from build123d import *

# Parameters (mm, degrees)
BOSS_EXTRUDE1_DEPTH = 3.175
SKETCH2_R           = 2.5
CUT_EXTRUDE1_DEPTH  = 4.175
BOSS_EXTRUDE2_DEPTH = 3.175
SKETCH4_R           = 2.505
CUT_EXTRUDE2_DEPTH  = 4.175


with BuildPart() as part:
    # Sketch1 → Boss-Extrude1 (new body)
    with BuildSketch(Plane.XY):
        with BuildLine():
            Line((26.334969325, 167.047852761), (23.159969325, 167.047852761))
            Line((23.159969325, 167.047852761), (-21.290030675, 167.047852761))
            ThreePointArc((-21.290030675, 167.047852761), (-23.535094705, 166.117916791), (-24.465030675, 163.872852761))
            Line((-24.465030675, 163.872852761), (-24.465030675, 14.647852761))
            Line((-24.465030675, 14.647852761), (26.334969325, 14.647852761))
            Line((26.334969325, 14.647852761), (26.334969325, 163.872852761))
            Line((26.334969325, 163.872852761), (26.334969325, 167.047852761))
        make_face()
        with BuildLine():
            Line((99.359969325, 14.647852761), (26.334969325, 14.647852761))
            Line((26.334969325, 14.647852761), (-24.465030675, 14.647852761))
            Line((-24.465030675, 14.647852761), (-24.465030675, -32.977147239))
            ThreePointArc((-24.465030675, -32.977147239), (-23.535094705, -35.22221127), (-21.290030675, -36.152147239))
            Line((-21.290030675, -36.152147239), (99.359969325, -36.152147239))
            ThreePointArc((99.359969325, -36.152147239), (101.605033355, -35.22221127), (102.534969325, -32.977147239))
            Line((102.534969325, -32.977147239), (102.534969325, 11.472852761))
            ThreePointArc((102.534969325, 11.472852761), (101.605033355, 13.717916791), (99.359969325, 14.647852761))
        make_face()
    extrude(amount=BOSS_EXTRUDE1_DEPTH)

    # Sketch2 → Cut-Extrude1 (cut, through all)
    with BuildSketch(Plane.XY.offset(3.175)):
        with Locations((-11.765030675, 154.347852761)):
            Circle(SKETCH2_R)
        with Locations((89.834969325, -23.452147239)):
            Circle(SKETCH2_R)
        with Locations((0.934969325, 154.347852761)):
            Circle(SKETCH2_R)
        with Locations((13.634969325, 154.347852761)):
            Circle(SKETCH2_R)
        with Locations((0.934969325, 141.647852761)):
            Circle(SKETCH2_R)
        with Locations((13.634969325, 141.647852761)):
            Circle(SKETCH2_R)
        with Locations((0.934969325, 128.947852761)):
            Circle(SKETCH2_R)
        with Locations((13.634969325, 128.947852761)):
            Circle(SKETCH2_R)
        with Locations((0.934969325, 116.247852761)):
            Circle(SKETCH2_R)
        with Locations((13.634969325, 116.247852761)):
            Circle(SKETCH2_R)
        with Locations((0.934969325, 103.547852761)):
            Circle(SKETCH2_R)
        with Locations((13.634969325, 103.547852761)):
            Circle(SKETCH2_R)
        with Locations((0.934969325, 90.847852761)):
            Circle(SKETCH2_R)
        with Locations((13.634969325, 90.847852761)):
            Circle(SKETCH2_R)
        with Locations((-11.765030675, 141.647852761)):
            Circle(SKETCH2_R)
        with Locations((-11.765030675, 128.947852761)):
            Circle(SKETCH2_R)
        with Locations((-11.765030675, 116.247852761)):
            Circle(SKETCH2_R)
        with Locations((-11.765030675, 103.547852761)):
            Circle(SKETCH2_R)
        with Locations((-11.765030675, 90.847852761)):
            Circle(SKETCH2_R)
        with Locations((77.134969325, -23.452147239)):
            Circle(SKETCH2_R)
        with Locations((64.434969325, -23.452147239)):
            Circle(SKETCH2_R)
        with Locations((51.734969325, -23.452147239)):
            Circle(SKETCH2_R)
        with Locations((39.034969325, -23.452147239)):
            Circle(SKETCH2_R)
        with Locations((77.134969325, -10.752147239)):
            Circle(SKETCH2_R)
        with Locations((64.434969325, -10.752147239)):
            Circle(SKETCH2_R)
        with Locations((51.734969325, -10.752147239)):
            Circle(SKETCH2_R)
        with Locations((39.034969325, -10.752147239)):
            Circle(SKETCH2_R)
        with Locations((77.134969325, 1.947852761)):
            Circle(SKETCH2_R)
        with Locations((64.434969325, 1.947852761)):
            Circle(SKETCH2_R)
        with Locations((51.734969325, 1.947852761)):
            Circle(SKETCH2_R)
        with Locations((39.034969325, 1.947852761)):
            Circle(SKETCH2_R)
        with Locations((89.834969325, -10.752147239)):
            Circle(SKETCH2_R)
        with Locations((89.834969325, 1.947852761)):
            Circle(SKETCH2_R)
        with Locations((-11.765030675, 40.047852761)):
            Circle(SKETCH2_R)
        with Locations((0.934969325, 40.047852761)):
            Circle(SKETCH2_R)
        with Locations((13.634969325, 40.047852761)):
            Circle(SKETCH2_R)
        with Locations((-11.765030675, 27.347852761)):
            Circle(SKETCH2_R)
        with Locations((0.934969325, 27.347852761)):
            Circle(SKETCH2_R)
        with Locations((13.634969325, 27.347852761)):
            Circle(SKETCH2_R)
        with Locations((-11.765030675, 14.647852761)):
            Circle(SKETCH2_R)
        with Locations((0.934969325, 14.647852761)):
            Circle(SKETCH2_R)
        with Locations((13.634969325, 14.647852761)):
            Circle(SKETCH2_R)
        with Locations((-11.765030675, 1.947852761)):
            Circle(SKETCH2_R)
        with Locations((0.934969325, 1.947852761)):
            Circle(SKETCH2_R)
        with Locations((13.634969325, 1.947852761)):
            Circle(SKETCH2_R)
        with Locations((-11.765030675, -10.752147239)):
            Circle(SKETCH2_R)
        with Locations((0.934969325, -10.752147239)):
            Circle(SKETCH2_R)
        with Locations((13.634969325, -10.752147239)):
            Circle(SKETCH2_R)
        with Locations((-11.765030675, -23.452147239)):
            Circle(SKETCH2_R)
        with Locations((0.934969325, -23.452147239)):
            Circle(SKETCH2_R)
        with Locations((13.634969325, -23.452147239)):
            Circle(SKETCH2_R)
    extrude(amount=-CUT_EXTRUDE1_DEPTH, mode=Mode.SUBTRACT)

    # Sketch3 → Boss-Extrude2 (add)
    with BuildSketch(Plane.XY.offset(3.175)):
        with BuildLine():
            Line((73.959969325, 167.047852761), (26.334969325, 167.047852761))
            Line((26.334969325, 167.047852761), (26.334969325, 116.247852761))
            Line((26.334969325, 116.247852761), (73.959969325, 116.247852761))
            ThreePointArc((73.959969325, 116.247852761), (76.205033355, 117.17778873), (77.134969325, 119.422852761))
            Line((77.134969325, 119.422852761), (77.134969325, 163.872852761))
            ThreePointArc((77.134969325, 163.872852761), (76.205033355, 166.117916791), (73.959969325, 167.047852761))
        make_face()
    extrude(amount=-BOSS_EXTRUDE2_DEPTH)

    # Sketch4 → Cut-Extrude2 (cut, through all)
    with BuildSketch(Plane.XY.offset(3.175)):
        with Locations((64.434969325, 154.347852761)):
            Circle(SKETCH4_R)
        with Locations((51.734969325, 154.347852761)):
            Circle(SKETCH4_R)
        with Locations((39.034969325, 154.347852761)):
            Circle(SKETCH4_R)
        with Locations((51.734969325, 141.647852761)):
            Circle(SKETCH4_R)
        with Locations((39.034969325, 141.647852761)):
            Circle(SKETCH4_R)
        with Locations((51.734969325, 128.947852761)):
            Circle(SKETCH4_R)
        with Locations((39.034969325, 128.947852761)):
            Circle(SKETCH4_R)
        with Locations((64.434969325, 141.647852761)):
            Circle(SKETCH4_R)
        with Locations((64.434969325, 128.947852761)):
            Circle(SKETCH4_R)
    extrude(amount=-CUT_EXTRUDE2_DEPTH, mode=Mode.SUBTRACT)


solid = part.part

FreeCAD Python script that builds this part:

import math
import FreeCAD as App
import Part
import Sketcher
Q = App.Units.Quantity

doc = App.newDocument("Part")
body = doc.addObject("PartDesign::Body", "Body")

# Sketch on XY plane
sketch1 = body.newObject("Sketcher::SketchObject", "Sketch")
sketch1.AttachmentSupport = (doc.getObject("XY_Plane"), [""])
sketch1.MapMode = "FlatFace"
sketch1.addGeometry([
    Part.LineSegment(App.Vector(26.3, 167, 0), App.Vector(-21.3, 167, 0)),  # 0
    Part.ArcOfCircle(Part.Circle(App.Vector(-21.3, 163.9, 0), App.Vector(0, 0, 1), 3.2), math.radians(90), math.radians(180)),  # 1
    Part.LineSegment(App.Vector(-24.5, 163.9, 0), App.Vector(-24.5, -33, 0)),  # 2
    Part.ArcOfCircle(Part.Circle(App.Vector(-21.3, -33, 0), App.Vector(0, 0, 1), 3.2), math.radians(180), math.radians(270)),  # 3
    Part.LineSegment(App.Vector(-21.3, -36.2, 0), App.Vector(99.4, -36.2, 0)),  # 4
    Part.ArcOfCircle(Part.Circle(App.Vector(99.4, -33, 0), App.Vector(0, 0, 1), 3.2), math.radians(-90), math.radians(0)),  # 5
    Part.LineSegment(App.Vector(102.5, -33, 0), App.Vector(102.5, 11.5, 0)),  # 6
    Part.ArcOfCircle(Part.Circle(App.Vector(99.4, 11.5, 0), App.Vector(0, 0, 1), 3.2), math.radians(0), math.radians(90)),  # 7
    Part.LineSegment(App.Vector(99.4, 14.6, 0), App.Vector(26.3, 14.6, 0)),  # 8
    Part.LineSegment(App.Vector(26.3, 14.6, 0), App.Vector(26.3, 167, 0)),  # 9
], False)
sketch1.addConstraint([
    Sketcher.Constraint("Tangent", 0, 2, 1, 1),
    Sketcher.Constraint("Tangent", 1, 2, 2, 1),
    Sketcher.Constraint("Tangent", 2, 2, 3, 1),
    Sketcher.Constraint("Tangent", 3, 2, 4, 1),
    Sketcher.Constraint("Tangent", 4, 2, 5, 1),
    Sketcher.Constraint("Tangent", 5, 2, 6, 1),
    Sketcher.Constraint("Tangent", 6, 2, 7, 1),
    Sketcher.Constraint("Tangent", 7, 2, 8, 1),
    Sketcher.Constraint("Coincident", 8, 2, 9, 1),
    Sketcher.Constraint("Coincident", 9, 2, 0, 1),
    Sketcher.Constraint("Horizontal", 0),
    Sketcher.Constraint("Vertical", 2),
    Sketcher.Constraint("Horizontal", 4),
    Sketcher.Constraint("Vertical", 6),
    Sketcher.Constraint("Horizontal", 8),
    Sketcher.Constraint("Vertical", 9),
    Sketcher.Constraint("Equal", 1, 3),
    Sketcher.Constraint("Equal", 3, 5),
    Sketcher.Constraint("Equal", 5, 7),
    Sketcher.Constraint("DistanceY", 9, 1, 9, 2, Q("6 in")),
    Sketcher.Constraint("Radius", 1, Q("0.125 in")),
    Sketcher.Constraint("DistanceY", 4, 2, 7, 2, Q("2 in")),
    Sketcher.Constraint("DistanceX", 2, 2, 8, 2, Q("2 in")),
    Sketcher.Constraint("DistanceX", 4, 1, 4, 2, Q("4.75 in")),
    Sketcher.Constraint("DistanceX", 1, 3, -1, 1, 21.290031),
    Sketcher.Constraint("DistanceY", -1, 1, 1, 3, 163.872853),
])
pad1 = body.newObject("PartDesign::Pad", "Pad")
pad1.Profile = sketch1
pad1.Length = Q("0.125 in")

# Sketch on XY plane
sketch2 = body.newObject("Sketcher::SketchObject", "Sketch001")
sketch2.AttachmentSupport = (doc.getObject("XY_Plane"), [""])
sketch2.MapMode = "FlatFace"
sketch2.AttachmentOffset = App.Placement(App.Vector(0, 0, 0.125 * 25.4), App.Rotation())
sketch2.addGeometry([
    Part.Circle(App.Vector(-11.8, 154.3, 0), App.Vector(0, 0, 1), 2.5),  # 0
    Part.Circle(App.Vector(89.8, -23.5, 0), App.Vector(0, 0, 1), 2.5),  # 1
    Part.Circle(App.Vector(0.9, 154.3, 0), App.Vector(0, 0, 1), 2.5),  # 2
    Part.Circle(App.Vector(13.6, 154.3, 0), App.Vector(0, 0, 1), 2.5),  # 3
    Part.Circle(App.Vector(0.9, 141.6, 0), App.Vector(0, 0, 1), 2.5),  # 4
    Part.Circle(App.Vector(13.6, 141.6, 0), App.Vector(0, 0, 1), 2.5),  # 5
    Part.Circle(App.Vector(0.9, 128.9, 0), App.Vector(0, 0, 1), 2.5),  # 6
    Part.Circle(App.Vector(13.6, 128.9, 0), App.Vector(0, 0, 1), 2.5),  # 7
    Part.Circle(App.Vector(0.9, 116.2, 0), App.Vector(0, 0, 1), 2.5),  # 8
    Part.Circle(App.Vector(13.6, 116.2, 0), App.Vector(0, 0, 1), 2.5),  # 9
    Part.Circle(App.Vector(0.9, 103.5, 0), App.Vector(0, 0, 1), 2.5),  # 10
    Part.Circle(App.Vector(13.6, 103.5, 0), App.Vector(0, 0, 1), 2.5),  # 11
    Part.Circle(App.Vector(0.9, 90.8, 0), App.Vector(0, 0, 1), 2.5),  # 12
    Part.Circle(App.Vector(13.6, 90.8, 0), App.Vector(0, 0, 1), 2.5),  # 13
    Part.Circle(App.Vector(-11.8, 141.6, 0), App.Vector(0, 0, 1), 2.5),  # 14
    Part.Circle(App.Vector(-11.8, 128.9, 0), App.Vector(0, 0, 1), 2.5),  # 15
    Part.Circle(App.Vector(-11.8, 116.2, 0), App.Vector(0, 0, 1), 2.5),  # 16
    Part.Circle(App.Vector(-11.8, 103.5, 0), App.Vector(0, 0, 1), 2.5),  # 17
    Part.Circle(App.Vector(-11.8, 90.8, 0), App.Vector(0, 0, 1), 2.5),  # 18
    Part.Circle(App.Vector(77.1, -23.5, 0), App.Vector(0, 0, 1), 2.5),  # 19
    Part.Circle(App.Vector(64.4, -23.5, 0), App.Vector(0, 0, 1), 2.5),  # 20
    Part.Circle(App.Vector(51.7, -23.5, 0), App.Vector(0, 0, 1), 2.5),  # 21
    Part.Circle(App.Vector(39, -23.5, 0), App.Vector(0, 0, 1), 2.5),  # 22
    Part.Circle(App.Vector(77.1, -10.8, 0), App.Vector(0, 0, 1), 2.5),  # 23
    Part.Circle(App.Vector(64.4, -10.8, 0), App.Vector(0, 0, 1), 2.5),  # 24
    Part.Circle(App.Vector(51.7, -10.8, 0), App.Vector(0, 0, 1), 2.5),  # 25
    Part.Circle(App.Vector(39, -10.8, 0), App.Vector(0, 0, 1), 2.5),  # 26
    Part.Circle(App.Vector(77.1, 1.9, 0), App.Vector(0, 0, 1), 2.5),  # 27
    Part.Circle(App.Vector(64.4, 1.9, 0), App.Vector(0, 0, 1), 2.5),  # 28
    Part.Circle(App.Vector(51.7, 1.9, 0), App.Vector(0, 0, 1), 2.5),  # 29
    Part.Circle(App.Vector(39, 1.9, 0), App.Vector(0, 0, 1), 2.5),  # 30
    Part.Circle(App.Vector(89.8, -10.8, 0), App.Vector(0, 0, 1), 2.5),  # 31
    Part.Circle(App.Vector(89.8, 1.9, 0), App.Vector(0, 0, 1), 2.5),  # 32
    Part.Circle(App.Vector(-11.8, 40, 0), App.Vector(0, 0, 1), 2.5),  # 33
    Part.Circle(App.Vector(0.9, 40, 0), App.Vector(0, 0, 1), 2.5),  # 34
    Part.Circle(App.Vector(13.6, 40, 0), App.Vector(0, 0, 1), 2.5),  # 35
    Part.Circle(App.Vector(-11.8, 27.3, 0), App.Vector(0, 0, 1), 2.5),  # 36
    Part.Circle(App.Vector(0.9, 27.3, 0), App.Vector(0, 0, 1), 2.5),  # 37
    Part.Circle(App.Vector(13.6, 27.3, 0), App.Vector(0, 0, 1), 2.5),  # 38
    Part.Circle(App.Vector(-11.8, 14.6, 0), App.Vector(0, 0, 1), 2.5),  # 39
    Part.Circle(App.Vector(0.9, 14.6, 0), App.Vector(0, 0, 1), 2.5),  # 40
    Part.Circle(App.Vector(13.6, 14.6, 0), App.Vector(0, 0, 1), 2.5),  # 41
    Part.Circle(App.Vector(-11.8, 1.9, 0), App.Vector(0, 0, 1), 2.5),  # 42
    Part.Circle(App.Vector(0.9, 1.9, 0), App.Vector(0, 0, 1), 2.5),  # 43
    Part.Circle(App.Vector(13.6, 1.9, 0), App.Vector(0, 0, 1), 2.5),  # 44
    Part.Circle(App.Vector(-11.8, -10.8, 0), App.Vector(0, 0, 1), 2.5),  # 45
    Part.Circle(App.Vector(0.9, -10.8, 0), App.Vector(0, 0, 1), 2.5),  # 46
    Part.Circle(App.Vector(13.6, -10.8, 0), App.Vector(0, 0, 1), 2.5),  # 47
    Part.Circle(App.Vector(-11.8, -23.5, 0), App.Vector(0, 0, 1), 2.5),  # 48
    Part.Circle(App.Vector(0.9, -23.5, 0), App.Vector(0, 0, 1), 2.5),  # 49
    Part.Circle(App.Vector(13.6, -23.5, 0), App.Vector(0, 0, 1), 2.5),  # 50
], False)
sketch2.addConstraint([
    Sketcher.Constraint("Equal", 0, 1),
    Sketcher.Constraint("Equal", 1, 2),
    Sketcher.Constraint("Equal", 2, 3),
    Sketcher.Constraint("Equal", 3, 4),
    Sketcher.Constraint("Equal", 4, 5),
    Sketcher.Constraint("Equal", 5, 6),
    Sketcher.Constraint("Equal", 6, 7),
    Sketcher.Constraint("Equal", 7, 8),
    Sketcher.Constraint("Equal", 8, 9),
    Sketcher.Constraint("Equal", 9, 10),
    Sketcher.Constraint("Equal", 10, 11),
    Sketcher.Constraint("Equal", 11, 12),
    Sketcher.Constraint("Equal", 12, 13),
    Sketcher.Constraint("Equal", 13, 14),
    Sketcher.Constraint("Equal", 14, 15),
    Sketcher.Constraint("Equal", 15, 16),
    Sketcher.Constraint("Equal", 16, 17),
    Sketcher.Constraint("Equal", 17, 18),
    Sketcher.Constraint("Equal", 18, 19),
    Sketcher.Constraint("Equal", 19, 20),
    Sketcher.Constraint("Equal", 20, 21),
    Sketcher.Constraint("Equal", 21, 22),
    Sketcher.Constraint("Equal", 22, 23),
    Sketcher.Constraint("Equal", 23, 24),
    Sketcher.Constraint("Equal", 24, 25),
    Sketcher.Constraint("Equal", 25, 26),
    Sketcher.Constraint("Equal", 26, 27),
    Sketcher.Constraint("Equal", 27, 28),
    Sketcher.Constraint("Equal", 28, 29),
    Sketcher.Constraint("Equal", 29, 30),
    Sketcher.Constraint("Equal", 30, 31),
    Sketcher.Constraint("Equal", 31, 32),
    Sketcher.Constraint("Equal", 32, 33),
    Sketcher.Constraint("Equal", 33, 34),
    Sketcher.Constraint("Equal", 34, 35),
    Sketcher.Constraint("Equal", 35, 36),
    Sketcher.Constraint("Equal", 36, 37),
    Sketcher.Constraint("Equal", 37, 38),
    Sketcher.Constraint("Equal", 38, 39),
    Sketcher.Constraint("Equal", 39, 40),
    Sketcher.Constraint("Equal", 40, 41),
    Sketcher.Constraint("Equal", 41, 42),
    Sketcher.Constraint("Equal", 42, 43),
    Sketcher.Constraint("Equal", 43, 44),
    Sketcher.Constraint("Equal", 44, 45),
    Sketcher.Constraint("Equal", 45, 46),
    Sketcher.Constraint("Equal", 46, 47),
    Sketcher.Constraint("Equal", 47, 48),
    Sketcher.Constraint("Equal", 48, 49),
    Sketcher.Constraint("Equal", 49, 50),
    Sketcher.Constraint("Horizontal", 0, 3, 2, 3),
    Sketcher.Constraint("Horizontal", 2, 3, 3, 3),
    Sketcher.Constraint("Horizontal", 4, 3, 5, 3),
    Sketcher.Constraint("Horizontal", 6, 3, 7, 3),
    Sketcher.Constraint("Horizontal", 8, 3, 9, 3),
    Sketcher.Constraint("Horizontal", 10, 3, 11, 3),
    Sketcher.Constraint("Horizontal", 12, 3, 13, 3),
    Sketcher.Constraint("Horizontal", 5, 3, 14, 3),
    Sketcher.Constraint("Horizontal", 7, 3, 15, 3),
    Sketcher.Constraint("Horizontal", 9, 3, 16, 3),
    Sketcher.Constraint("Horizontal", 11, 3, 17, 3),
    Sketcher.Constraint("Horizontal", 13, 3, 18, 3),
    Sketcher.Constraint("Horizontal", 1, 3, 19, 3),
    Sketcher.Constraint("Horizontal", 19, 3, 20, 3),
    Sketcher.Constraint("Horizontal", 20, 3, 21, 3),
    Sketcher.Constraint("Horizontal", 21, 3, 22, 3),
    Sketcher.Constraint("Horizontal", 23, 3, 24, 3),
    Sketcher.Constraint("Horizontal", 24, 3, 25, 3),
    Sketcher.Constraint("Horizontal", 25, 3, 26, 3),
    Sketcher.Constraint("Horizontal", 27, 3, 28, 3),
    Sketcher.Constraint("Horizontal", 28, 3, 29, 3),
    Sketcher.Constraint("Horizontal", 29, 3, 30, 3),
    Sketcher.Constraint("Horizontal", 26, 3, 31, 3),
    Sketcher.Constraint("Horizontal", 30, 3, 32, 3),
    Sketcher.Constraint("Horizontal", 33, 3, 34, 3),
    Sketcher.Constraint("Horizontal", 34, 3, 35, 3),
    Sketcher.Constraint("Horizontal", 36, 3, 37, 3),
    Sketcher.Constraint("Horizontal", 37, 3, 38, 3),
    Sketcher.Constraint("Horizontal", 39, 3, 40, 3),
    Sketcher.Constraint("Horizontal", 40, 3, 41, 3),
    Sketcher.Constraint("Horizontal", 32, 3, 42, 3),
    Sketcher.Constraint("Horizontal", 42, 3, 43, 3),
    Sketcher.Constraint("Horizontal", 43, 3, 44, 3),
    Sketcher.Constraint("Horizontal", 31, 3, 45, 3),
    Sketcher.Constraint("Horizontal", 45, 3, 46, 3),
    Sketcher.Constraint("Horizontal", 46, 3, 47, 3),
    Sketcher.Constraint("Horizontal", 22, 3, 48, 3),
    Sketcher.Constraint("Horizontal", 48, 3, 49, 3),
    Sketcher.Constraint("Horizontal", 49, 3, 50, 3),
    Sketcher.Constraint("Vertical", 2, 3, 4, 3),
    Sketcher.Constraint("Vertical", 3, 3, 5, 3),
    Sketcher.Constraint("Vertical", 4, 3, 6, 3),
    Sketcher.Constraint("Vertical", 5, 3, 7, 3),
    Sketcher.Constraint("Vertical", 6, 3, 8, 3),
    Sketcher.Constraint("Vertical", 7, 3, 9, 3),
    Sketcher.Constraint("Vertical", 8, 3, 10, 3),
    Sketcher.Constraint("Vertical", 9, 3, 11, 3),
    Sketcher.Constraint("Vertical", 10, 3, 12, 3),
    Sketcher.Constraint("Vertical", 11, 3, 13, 3),
    Sketcher.Constraint("Vertical", 0, 3, 14, 3),
    Sketcher.Constraint("Vertical", 14, 3, 15, 3),
    Sketcher.Constraint("Vertical", 15, 3, 16, 3),
    Sketcher.Constraint("Vertical", 16, 3, 17, 3),
    Sketcher.Constraint("Vertical", 17, 3, 18, 3),
    Sketcher.Constraint("Vertical", 19, 3, 23, 3),
    Sketcher.Constraint("Vertical", 20, 3, 24, 3),
    Sketcher.Constraint("Vertical", 21, 3, 25, 3),
    Sketcher.Constraint("Vertical", 22, 3, 26, 3),
    Sketcher.Constraint("Vertical", 23, 3, 27, 3),
    Sketcher.Constraint("Vertical", 24, 3, 28, 3),
    Sketcher.Constraint("Vertical", 25, 3, 29, 3),
    Sketcher.Constraint("Vertical", 26, 3, 30, 3),
    Sketcher.Constraint("Vertical", 1, 3, 31, 3),
    Sketcher.Constraint("Vertical", 31, 3, 32, 3),
    Sketcher.Constraint("Vertical", 18, 3, 33, 3),
    Sketcher.Constraint("Vertical", 12, 3, 34, 3),
    Sketcher.Constraint("Vertical", 13, 3, 35, 3),
    Sketcher.Constraint("Vertical", 33, 3, 36, 3),
    Sketcher.Constraint("Vertical", 34, 3, 37, 3),
    Sketcher.Constraint("Vertical", 35, 3, 38, 3),
    Sketcher.Constraint("Vertical", 36, 3, 39, 3),
    Sketcher.Constraint("Vertical", 37, 3, 40, 3),
    Sketcher.Constraint("Vertical", 38, 3, 41, 3),
    Sketcher.Constraint("Vertical", 39, 3, 42, 3),
    Sketcher.Constraint("Vertical", 40, 3, 43, 3),
    Sketcher.Constraint("Vertical", 41, 3, 44, 3),
    Sketcher.Constraint("Vertical", 42, 3, 45, 3),
    Sketcher.Constraint("Vertical", 43, 3, 46, 3),
    Sketcher.Constraint("Vertical", 44, 3, 47, 3),
    Sketcher.Constraint("Vertical", 45, 3, 48, 3),
    Sketcher.Constraint("Vertical", 46, 3, 49, 3),
    Sketcher.Constraint("Vertical", 47, 3, 50, 3),
    Sketcher.Constraint("DistanceX", 0, 3, 1, 3, Q("4 in")),
    Sketcher.Constraint("DistanceY", 1, 3, 0, 3, Q("7 in")),
    Sketcher.Constraint("DistanceX", 0, 3, 3, 3, Q("1 in")),
    Sketcher.Constraint("DistanceY", 6, 3, 2, 3, Q("1 in")),
    Sketcher.Constraint("DistanceY", 8, 3, 4, 3, Q("1 in")),
    Sketcher.Constraint("DistanceY", 10, 3, 6, 3, Q("1 in")),
    Sketcher.Constraint("DistanceY", 12, 3, 8, 3, Q("1 in")),
    Sketcher.Constraint("DistanceX", 12, 3, 19, 3, Q("3 in")),
    Sketcher.Constraint("DistanceX", 20, 3, 1, 3, Q("1 in")),
    Sketcher.Constraint("DistanceX", 21, 3, 19, 3, Q("1 in")),
    Sketcher.Constraint("DistanceX", 22, 3, 20, 3, Q("1 in")),
    Sketcher.Constraint("DistanceY", 19, 3, 27, 3, Q("1 in")),
    Sketcher.Constraint("DistanceY", 33, 3, 18, 3, Q("2 in")),
    Sketcher.Constraint("DistanceY", 30, 3, 36, 3, Q("1 in")),
    Sketcher.Constraint("DistanceY", 39, 3, 33, 3, Q("1 in")),
    Sketcher.Constraint("DistanceY", 45, 3, 39, 3, Q("1 in")),
    Sketcher.Constraint("DistanceX", 0, 3, 2, 3, Q("0.5 in")),
    Sketcher.Constraint("DistanceY", 4, 3, 2, 3, Q("0.5 in")),
    Sketcher.Constraint("Diameter", 0, 5.0),
    Sketcher.Constraint("DistanceX", 0, 3, -1, 1, 11.765031),
    Sketcher.Constraint("DistanceY", -1, 1, 0, 3, 154.347853),
])
pocket1 = body.newObject("PartDesign::Pocket", "Pocket")
pocket1.Profile = sketch2
pocket1.Type = "ThroughAll"

# Sketch on XY plane
sketch3 = body.newObject("Sketcher::SketchObject", "Sketch002")
sketch3.AttachmentSupport = (doc.getObject("XY_Plane"), [""])
sketch3.MapMode = "FlatFace"
sketch3.AttachmentOffset = App.Placement(App.Vector(0, 0, 0.125 * 25.4), App.Rotation())
sketch3.addGeometry([
    Part.LineSegment(App.Vector(74, 167, 0), App.Vector(26.3, 167, 0)),  # 0
    Part.LineSegment(App.Vector(26.3, 167, 0), App.Vector(26.3, 116.2, 0)),  # 1
    Part.LineSegment(App.Vector(26.3, 116.2, 0), App.Vector(74, 116.2, 0)),  # 2
    Part.ArcOfCircle(Part.Circle(App.Vector(74, 119.4, 0), App.Vector(0, 0, 1), 3.2), math.radians(-90), math.radians(0)),  # 3
    Part.LineSegment(App.Vector(77.1, 119.4, 0), App.Vector(77.1, 163.9, 0)),  # 4
    Part.ArcOfCircle(Part.Circle(App.Vector(74, 163.9, 0), App.Vector(0, 0, 1), 3.2), math.radians(0), math.radians(90)),  # 5
], False)
sketch3.addConstraint([
    Sketcher.Constraint("Coincident", 0, 2, 1, 1),
    Sketcher.Constraint("Coincident", 1, 2, 2, 1),
    Sketcher.Constraint("Tangent", 2, 2, 3, 1),
    Sketcher.Constraint("Tangent", 3, 2, 4, 1),
    Sketcher.Constraint("Tangent", 4, 2, 5, 1),
    Sketcher.Constraint("Tangent", 5, 2, 0, 1),
    Sketcher.Constraint("Horizontal", 0),
    Sketcher.Constraint("Vertical", 1),
    Sketcher.Constraint("Horizontal", 2),
    Sketcher.Constraint("Vertical", 4),
    Sketcher.Constraint("Equal", 3, 5),
    Sketcher.Constraint("DistanceY", 1, 2, 1, 1, Q("2 in")),
    Sketcher.Constraint("Radius", 3, Q("0.125 in")),
    Sketcher.Constraint("DistanceX", 1, 2, 3, 2, Q("2 in")),
    Sketcher.Constraint("DistanceX", -1, 1, 3, 3, 73.959969),
    Sketcher.Constraint("DistanceY", -1, 1, 3, 3, 119.422853),
])
pad2 = body.newObject("PartDesign::Pad", "Pad001")
pad2.Profile = sketch3
pad2.Length = Q("0.125 in")
pad2.Reversed = True

# Sketch on XY plane
sketch4 = body.newObject("Sketcher::SketchObject", "Sketch003")
sketch4.AttachmentSupport = (doc.getObject("XY_Plane"), [""])
sketch4.MapMode = "FlatFace"
sketch4.AttachmentOffset = App.Placement(App.Vector(0, 0, 0.125 * 25.4), App.Rotation())
sketch4.addGeometry([
    Part.Circle(App.Vector(64.4, 154.3, 0), App.Vector(0, 0, 1), 2.5),  # 0
    Part.Circle(App.Vector(51.7, 154.3, 0), App.Vector(0, 0, 1), 2.5),  # 1
    Part.Circle(App.Vector(39, 154.3, 0), App.Vector(0, 0, 1), 2.5),  # 2
    Part.Circle(App.Vector(51.7, 141.6, 0), App.Vector(0, 0, 1), 2.5),  # 3
    Part.Circle(App.Vector(39, 141.6, 0), App.Vector(0, 0, 1), 2.5),  # 4
    Part.Circle(App.Vector(51.7, 128.9, 0), App.Vector(0, 0, 1), 2.5),  # 5
    Part.Circle(App.Vector(39, 128.9, 0), App.Vector(0, 0, 1), 2.5),  # 6
    Part.Circle(App.Vector(64.4, 141.6, 0), App.Vector(0, 0, 1), 2.5),  # 7
    Part.Circle(App.Vector(64.4, 128.9, 0), App.Vector(0, 0, 1), 2.5),  # 8
], False)
sketch4.addConstraint([
    Sketcher.Constraint("Equal", 0, 1),
    Sketcher.Constraint("Equal", 1, 2),
    Sketcher.Constraint("Equal", 2, 3),
    Sketcher.Constraint("Equal", 3, 4),
    Sketcher.Constraint("Equal", 4, 5),
    Sketcher.Constraint("Equal", 5, 6),
    Sketcher.Constraint("Equal", 6, 7),
    Sketcher.Constraint("Equal", 7, 8),
    Sketcher.Constraint("Horizontal", 0, 3, 1, 3),
    Sketcher.Constraint("Horizontal", 1, 3, 2, 3),
    Sketcher.Constraint("Horizontal", 3, 3, 4, 3),
    Sketcher.Constraint("Horizontal", 5, 3, 6, 3),
    Sketcher.Constraint("Horizontal", 4, 3, 7, 3),
    Sketcher.Constraint("Horizontal", 6, 3, 8, 3),
    Sketcher.Constraint("Vertical", 1, 3, 3, 3),
    Sketcher.Constraint("Vertical", 2, 3, 4, 3),
    Sketcher.Constraint("Vertical", 3, 3, 5, 3),
    Sketcher.Constraint("Vertical", 4, 3, 6, 3),
    Sketcher.Constraint("Vertical", 0, 3, 7, 3),
    Sketcher.Constraint("Vertical", 7, 3, 8, 3),
    Sketcher.Constraint("DistanceX", 2, 3, 0, 3, Q("1 in")),
    Sketcher.Constraint("DistanceY", 5, 3, 1, 3, Q("1 in")),
    Sketcher.Constraint("DistanceX", 1, 3, 0, 3, Q("0.5 in")),
    Sketcher.Constraint("DistanceY", 3, 3, 1, 3, Q("0.5 in")),
    Sketcher.Constraint("Diameter", 0, 5.01),
    Sketcher.Constraint("DistanceX", -1, 1, 0, 3, 64.434969),
    Sketcher.Constraint("DistanceY", -1, 1, 0, 3, 154.347853),
])
pocket2 = body.newObject("PartDesign::Pocket", "Pocket001")
pocket2.Profile = sketch4
pocket2.Type = "ThroughAll"

doc.recompute()
